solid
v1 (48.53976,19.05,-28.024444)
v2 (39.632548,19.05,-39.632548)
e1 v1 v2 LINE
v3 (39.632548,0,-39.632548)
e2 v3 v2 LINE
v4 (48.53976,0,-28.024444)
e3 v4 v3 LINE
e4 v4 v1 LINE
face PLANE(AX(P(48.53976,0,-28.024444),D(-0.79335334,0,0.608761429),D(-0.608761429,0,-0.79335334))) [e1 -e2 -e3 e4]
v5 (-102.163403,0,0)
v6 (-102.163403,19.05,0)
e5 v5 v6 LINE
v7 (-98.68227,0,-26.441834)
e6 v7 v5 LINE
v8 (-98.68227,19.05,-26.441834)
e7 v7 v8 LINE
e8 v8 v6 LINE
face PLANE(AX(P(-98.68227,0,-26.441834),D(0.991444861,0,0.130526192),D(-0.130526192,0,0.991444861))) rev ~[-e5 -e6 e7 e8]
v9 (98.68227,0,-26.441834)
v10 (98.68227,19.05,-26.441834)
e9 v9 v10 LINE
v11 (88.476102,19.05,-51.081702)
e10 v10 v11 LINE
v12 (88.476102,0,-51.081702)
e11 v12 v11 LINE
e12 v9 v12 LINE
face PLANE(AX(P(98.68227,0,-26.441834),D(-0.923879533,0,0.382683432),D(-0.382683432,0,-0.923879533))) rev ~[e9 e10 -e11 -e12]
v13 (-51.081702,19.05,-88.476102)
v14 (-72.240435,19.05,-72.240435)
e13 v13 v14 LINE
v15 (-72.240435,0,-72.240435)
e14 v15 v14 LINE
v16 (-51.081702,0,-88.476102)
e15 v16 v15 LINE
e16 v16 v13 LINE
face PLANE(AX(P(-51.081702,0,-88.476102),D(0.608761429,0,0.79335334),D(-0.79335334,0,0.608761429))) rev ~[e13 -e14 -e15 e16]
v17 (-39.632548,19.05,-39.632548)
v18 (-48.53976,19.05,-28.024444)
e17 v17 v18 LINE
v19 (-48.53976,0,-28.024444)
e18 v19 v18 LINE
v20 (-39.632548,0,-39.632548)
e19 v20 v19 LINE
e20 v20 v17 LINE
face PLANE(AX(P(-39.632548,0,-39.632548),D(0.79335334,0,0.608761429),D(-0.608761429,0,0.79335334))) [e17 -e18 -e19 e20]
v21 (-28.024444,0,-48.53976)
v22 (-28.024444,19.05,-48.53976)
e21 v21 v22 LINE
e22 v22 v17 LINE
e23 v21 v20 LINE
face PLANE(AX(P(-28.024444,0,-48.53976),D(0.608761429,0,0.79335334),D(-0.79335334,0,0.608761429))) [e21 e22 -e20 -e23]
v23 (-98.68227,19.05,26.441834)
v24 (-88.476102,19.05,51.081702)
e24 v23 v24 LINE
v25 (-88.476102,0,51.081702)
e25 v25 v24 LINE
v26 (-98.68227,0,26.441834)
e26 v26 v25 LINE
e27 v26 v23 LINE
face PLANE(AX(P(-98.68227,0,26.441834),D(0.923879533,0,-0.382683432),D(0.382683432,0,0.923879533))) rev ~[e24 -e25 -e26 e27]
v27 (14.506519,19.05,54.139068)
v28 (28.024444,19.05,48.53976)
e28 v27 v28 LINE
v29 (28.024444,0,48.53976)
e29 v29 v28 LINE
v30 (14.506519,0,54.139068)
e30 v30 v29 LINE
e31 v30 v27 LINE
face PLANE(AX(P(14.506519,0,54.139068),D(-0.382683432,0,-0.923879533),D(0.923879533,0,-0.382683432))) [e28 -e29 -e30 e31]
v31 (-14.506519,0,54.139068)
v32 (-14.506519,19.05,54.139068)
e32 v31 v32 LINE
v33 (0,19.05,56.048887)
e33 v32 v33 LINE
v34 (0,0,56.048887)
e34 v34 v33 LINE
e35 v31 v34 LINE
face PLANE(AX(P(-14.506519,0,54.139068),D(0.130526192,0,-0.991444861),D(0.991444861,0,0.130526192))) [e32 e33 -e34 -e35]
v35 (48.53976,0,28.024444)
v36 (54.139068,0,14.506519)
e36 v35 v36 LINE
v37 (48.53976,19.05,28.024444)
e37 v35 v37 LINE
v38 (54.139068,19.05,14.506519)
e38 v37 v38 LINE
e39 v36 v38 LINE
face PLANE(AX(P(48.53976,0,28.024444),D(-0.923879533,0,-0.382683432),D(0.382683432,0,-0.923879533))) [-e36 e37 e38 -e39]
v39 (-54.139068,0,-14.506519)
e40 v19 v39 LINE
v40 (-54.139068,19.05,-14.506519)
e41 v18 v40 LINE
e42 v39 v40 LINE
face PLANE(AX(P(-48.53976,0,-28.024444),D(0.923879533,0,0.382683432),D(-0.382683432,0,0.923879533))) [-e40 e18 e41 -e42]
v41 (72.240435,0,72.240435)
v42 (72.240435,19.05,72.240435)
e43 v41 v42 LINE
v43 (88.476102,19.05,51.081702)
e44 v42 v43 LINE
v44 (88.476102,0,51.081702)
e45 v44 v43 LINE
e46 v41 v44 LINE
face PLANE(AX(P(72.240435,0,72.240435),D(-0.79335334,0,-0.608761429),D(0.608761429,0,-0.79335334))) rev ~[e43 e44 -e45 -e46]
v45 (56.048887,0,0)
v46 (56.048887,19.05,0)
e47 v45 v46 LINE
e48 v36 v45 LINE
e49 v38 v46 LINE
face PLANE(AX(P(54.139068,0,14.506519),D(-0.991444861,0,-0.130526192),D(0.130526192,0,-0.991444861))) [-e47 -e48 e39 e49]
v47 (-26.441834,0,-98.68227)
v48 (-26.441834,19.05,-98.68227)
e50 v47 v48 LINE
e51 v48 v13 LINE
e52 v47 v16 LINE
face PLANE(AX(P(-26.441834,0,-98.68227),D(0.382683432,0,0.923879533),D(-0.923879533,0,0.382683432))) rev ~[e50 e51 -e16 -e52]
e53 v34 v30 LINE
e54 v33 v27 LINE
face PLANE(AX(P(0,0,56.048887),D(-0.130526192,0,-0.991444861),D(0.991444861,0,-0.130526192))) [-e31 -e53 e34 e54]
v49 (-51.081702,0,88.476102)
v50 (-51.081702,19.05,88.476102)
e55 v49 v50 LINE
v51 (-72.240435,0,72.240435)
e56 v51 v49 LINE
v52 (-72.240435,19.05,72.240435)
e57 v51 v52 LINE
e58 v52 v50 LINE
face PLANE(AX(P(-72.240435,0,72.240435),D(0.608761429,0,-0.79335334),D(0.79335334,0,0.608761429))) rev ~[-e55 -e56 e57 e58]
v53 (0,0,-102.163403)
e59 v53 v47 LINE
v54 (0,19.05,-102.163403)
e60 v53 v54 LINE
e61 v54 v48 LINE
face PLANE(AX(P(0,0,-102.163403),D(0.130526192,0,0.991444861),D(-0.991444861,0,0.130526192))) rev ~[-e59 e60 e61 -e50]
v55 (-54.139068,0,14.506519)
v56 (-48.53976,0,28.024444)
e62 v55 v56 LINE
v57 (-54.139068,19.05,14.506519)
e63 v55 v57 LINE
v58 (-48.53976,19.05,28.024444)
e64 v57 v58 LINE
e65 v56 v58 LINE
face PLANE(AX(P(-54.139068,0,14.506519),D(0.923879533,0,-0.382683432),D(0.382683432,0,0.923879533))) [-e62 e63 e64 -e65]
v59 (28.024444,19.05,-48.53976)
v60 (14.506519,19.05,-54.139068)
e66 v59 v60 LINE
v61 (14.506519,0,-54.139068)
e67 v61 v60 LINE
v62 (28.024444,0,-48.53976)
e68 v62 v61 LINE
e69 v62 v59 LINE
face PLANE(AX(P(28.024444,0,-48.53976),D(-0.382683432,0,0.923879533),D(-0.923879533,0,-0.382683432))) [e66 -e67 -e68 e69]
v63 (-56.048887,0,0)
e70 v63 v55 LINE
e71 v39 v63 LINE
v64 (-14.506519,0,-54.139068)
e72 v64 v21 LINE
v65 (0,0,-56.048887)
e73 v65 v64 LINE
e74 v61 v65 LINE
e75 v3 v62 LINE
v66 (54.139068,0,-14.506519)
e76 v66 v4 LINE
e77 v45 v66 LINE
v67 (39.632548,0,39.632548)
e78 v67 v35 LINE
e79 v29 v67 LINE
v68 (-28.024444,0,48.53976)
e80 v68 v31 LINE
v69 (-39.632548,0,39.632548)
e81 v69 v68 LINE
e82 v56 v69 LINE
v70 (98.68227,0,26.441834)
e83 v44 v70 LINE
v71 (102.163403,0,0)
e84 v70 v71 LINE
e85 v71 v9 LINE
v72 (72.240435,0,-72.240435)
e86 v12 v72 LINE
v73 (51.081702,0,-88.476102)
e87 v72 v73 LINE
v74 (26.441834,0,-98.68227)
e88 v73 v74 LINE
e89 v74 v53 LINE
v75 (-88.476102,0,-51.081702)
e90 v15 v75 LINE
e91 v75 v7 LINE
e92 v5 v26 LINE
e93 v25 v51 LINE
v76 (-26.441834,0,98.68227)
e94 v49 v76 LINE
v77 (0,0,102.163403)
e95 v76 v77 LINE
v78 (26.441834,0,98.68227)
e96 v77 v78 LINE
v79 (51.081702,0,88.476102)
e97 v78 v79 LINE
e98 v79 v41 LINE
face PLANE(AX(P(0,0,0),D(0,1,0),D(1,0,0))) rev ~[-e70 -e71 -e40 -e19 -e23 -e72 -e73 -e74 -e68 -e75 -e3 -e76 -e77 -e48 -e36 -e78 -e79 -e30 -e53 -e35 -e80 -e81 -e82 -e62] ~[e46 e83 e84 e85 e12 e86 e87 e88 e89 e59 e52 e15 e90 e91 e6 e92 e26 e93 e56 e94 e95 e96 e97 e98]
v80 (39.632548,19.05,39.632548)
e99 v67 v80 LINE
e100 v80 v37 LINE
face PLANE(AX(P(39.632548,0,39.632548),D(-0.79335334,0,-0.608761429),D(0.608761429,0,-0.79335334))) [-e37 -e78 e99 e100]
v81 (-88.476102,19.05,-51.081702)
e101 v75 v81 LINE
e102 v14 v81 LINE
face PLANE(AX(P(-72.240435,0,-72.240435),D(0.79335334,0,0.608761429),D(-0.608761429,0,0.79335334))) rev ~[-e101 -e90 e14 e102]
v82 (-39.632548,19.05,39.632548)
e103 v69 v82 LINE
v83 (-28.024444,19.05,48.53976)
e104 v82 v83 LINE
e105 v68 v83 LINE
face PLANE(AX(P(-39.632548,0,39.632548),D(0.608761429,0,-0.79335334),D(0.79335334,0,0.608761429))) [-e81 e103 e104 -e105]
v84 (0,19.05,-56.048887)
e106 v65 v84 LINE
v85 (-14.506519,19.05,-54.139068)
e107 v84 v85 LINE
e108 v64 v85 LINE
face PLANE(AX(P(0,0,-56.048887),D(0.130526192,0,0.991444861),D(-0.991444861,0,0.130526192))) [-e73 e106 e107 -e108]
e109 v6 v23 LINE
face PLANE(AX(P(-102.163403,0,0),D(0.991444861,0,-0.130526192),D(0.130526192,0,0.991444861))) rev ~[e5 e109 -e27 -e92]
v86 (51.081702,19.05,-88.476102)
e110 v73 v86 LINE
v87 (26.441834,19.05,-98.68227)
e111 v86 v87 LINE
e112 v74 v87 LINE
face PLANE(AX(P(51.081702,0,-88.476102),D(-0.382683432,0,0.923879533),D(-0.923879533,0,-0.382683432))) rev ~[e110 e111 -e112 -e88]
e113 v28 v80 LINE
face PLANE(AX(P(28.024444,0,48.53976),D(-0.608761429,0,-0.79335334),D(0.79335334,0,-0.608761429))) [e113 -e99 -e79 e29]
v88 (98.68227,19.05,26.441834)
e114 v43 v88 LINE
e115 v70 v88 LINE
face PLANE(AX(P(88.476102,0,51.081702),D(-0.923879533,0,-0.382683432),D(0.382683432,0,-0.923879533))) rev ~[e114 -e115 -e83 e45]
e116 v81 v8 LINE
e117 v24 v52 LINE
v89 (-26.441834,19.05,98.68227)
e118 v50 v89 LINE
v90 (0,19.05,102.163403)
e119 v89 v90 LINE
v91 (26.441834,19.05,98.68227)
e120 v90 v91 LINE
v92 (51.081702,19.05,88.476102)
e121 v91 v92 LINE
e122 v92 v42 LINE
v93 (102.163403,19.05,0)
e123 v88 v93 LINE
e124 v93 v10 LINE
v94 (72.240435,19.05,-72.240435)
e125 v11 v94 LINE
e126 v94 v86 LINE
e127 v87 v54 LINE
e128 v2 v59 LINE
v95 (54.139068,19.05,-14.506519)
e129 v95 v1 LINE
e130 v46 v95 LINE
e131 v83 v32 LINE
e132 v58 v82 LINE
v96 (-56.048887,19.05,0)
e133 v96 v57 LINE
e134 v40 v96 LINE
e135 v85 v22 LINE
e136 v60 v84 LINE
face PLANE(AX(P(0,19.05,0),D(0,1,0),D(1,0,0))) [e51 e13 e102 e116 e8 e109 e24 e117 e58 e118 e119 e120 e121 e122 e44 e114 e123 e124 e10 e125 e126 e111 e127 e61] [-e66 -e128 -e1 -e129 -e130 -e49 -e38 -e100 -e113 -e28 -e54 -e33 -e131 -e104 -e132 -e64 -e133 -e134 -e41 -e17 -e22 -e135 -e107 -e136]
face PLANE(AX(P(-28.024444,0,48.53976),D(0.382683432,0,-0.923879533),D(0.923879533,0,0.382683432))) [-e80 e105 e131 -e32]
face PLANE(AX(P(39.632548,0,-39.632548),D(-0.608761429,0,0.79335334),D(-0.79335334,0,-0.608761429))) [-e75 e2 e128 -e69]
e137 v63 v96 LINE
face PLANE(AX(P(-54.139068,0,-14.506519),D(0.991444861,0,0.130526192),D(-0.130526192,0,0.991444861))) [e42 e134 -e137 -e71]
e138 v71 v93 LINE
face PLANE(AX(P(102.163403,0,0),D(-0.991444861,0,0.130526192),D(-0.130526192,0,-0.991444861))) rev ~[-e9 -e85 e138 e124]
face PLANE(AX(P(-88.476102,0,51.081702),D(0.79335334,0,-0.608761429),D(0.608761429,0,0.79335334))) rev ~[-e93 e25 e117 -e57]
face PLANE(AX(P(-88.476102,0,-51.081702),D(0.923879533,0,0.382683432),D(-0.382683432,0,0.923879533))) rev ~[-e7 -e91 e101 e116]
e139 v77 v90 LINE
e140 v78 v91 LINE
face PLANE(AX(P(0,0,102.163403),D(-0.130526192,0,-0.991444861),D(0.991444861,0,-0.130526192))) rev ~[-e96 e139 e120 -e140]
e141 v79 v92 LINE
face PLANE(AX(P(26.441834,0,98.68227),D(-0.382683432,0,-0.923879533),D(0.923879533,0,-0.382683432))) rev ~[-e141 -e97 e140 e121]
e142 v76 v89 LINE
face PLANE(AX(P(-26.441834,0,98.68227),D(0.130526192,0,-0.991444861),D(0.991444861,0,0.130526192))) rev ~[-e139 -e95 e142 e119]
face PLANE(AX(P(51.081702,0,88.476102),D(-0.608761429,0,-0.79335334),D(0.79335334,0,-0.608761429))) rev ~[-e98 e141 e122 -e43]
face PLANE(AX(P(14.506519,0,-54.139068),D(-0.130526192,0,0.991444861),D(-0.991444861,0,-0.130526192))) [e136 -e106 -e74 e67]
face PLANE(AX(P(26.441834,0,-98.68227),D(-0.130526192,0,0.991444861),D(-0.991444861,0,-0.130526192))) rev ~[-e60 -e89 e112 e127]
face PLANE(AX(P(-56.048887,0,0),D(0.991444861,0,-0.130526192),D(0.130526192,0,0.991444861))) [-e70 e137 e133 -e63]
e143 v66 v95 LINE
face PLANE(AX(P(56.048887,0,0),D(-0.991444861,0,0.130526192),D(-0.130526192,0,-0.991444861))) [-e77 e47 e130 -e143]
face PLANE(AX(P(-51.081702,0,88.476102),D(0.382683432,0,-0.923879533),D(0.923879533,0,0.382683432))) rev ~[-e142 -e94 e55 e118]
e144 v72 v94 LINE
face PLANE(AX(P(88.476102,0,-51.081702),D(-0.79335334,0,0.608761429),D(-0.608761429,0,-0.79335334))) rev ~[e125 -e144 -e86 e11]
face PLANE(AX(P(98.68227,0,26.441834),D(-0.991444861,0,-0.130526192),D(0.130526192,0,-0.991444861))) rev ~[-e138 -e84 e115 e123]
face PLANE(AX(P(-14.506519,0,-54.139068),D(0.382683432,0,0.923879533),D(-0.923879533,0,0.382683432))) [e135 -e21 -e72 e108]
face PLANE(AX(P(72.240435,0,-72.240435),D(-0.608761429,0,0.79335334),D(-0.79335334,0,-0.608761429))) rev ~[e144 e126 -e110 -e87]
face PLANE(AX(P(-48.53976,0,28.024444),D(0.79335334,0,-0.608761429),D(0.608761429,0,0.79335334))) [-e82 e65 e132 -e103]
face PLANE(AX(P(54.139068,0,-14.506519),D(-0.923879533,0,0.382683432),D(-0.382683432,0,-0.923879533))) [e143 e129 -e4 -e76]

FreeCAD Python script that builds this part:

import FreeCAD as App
import Part
import Sketcher
Q = App.Units.Quantity

doc = App.newDocument("Part")
body = doc.addObject("PartDesign::Body", "Body")

# Sketch on XZ plane
sketch1 = doc.addObject("Sketcher::SketchObject", "Sketch")
body.addObject(sketch1)
sketch1.AttachmentSupport = (doc.XZ_Plane, [""])
sketch1.MapMode = "FlatFace"
sketch1.addGeometry([
    Part.LineSegment(App.Vector(-102, 0, 0), App.Vector(-99, 26, 0)),  # 0
    Part.LineSegment(App.Vector(-99, 26, 0), App.Vector(-88, 51, 0)),  # 1
    Part.LineSegment(App.Vector(-88, 51, 0), App.Vector(-72, 72, 0)),  # 2
    Part.LineSegment(App.Vector(-72, 72, 0), App.Vector(-51, 88, 0)),  # 3
    Part.LineSegment(App.Vector(-51, 88, 0), App.Vector(-26, 99, 0)),  # 4
    Part.LineSegment(App.Vector(-26, 99, 0), App.Vector(0, 102, 0)),  # 5
    Part.LineSegment(App.Vector(0, 102, 0), App.Vector(26, 99, 0)),  # 6
    Part.LineSegment(App.Vector(26, 99, 0), App.Vector(51, 88, 0)),  # 7
    Part.LineSegment(App.Vector(51, 88, 0), App.Vector(72, 72, 0)),  # 8
    Part.LineSegment(App.Vector(72, 72, 0), App.Vector(88, 51, 0)),  # 9
    Part.LineSegment(App.Vector(88, 51, 0), App.Vector(99, 26, 0)),  # 10
    Part.LineSegment(App.Vector(99, 26, 0), App.Vector(102, 0, 0)),  # 11
    Part.LineSegment(App.Vector(102, 0, 0), App.Vector(99, -26, 0)),  # 12
    Part.LineSegment(App.Vector(99, -26, 0), App.Vector(88, -51, 0)),  # 13
    Part.LineSegment(App.Vector(88, -51, 0), App.Vector(72, -72, 0)),  # 14
    Part.LineSegment(App.Vector(72, -72, 0), App.Vector(51, -88, 0)),  # 15
    Part.LineSegment(App.Vector(51, -88, 0), App.Vector(26, -99, 0)),  # 16
    Part.LineSegment(App.Vector(26, -99, 0), App.Vector(0, -102, 0)),  # 17
    Part.LineSegment(App.Vector(0, -102, 0), App.Vector(-26, -99, 0)),  # 18
    Part.LineSegment(App.Vector(-26, -99, 0), App.Vector(-51, -88, 0)),  # 19
    Part.LineSegment(App.Vector(-51, -88, 0), App.Vector(-72, -72, 0)),  # 20
    Part.LineSegment(App.Vector(-72, -72, 0), App.Vector(-88, -51, 0)),  # 21
    Part.LineSegment(App.Vector(-88, -51, 0), App.Vector(-99, -26, 0)),  # 22
    Part.LineSegment(App.Vector(-99, -26, 0), App.Vector(-102, 0, 0)),  # 23
    Part.LineSegment(App.Vector(-54, 15, 0), App.Vector(-56, 0, 0)),  # 24
    Part.LineSegment(App.Vector(-56, 0, 0), App.Vector(-54, -15, 0)),  # 25
    Part.LineSegment(App.Vector(-54, -15, 0), App.Vector(-49, -28, 0)),  # 26
    Part.LineSegment(App.Vector(-49, -28, 0), App.Vector(-40, -40, 0)),  # 27
    Part.LineSegment(App.Vector(-40, -40, 0), App.Vector(-28, -49, 0)),  # 28
    Part.LineSegment(App.Vector(-28, -49, 0), App.Vector(-15, -54, 0)),  # 29
    Part.LineSegment(App.Vector(-15, -54, 0), App.Vector(0, -56, 0)),  # 30
    Part.LineSegment(App.Vector(0, -56, 0), App.Vector(15, -54, 0)),  # 31
    Part.LineSegment(App.Vector(15, -54, 0), App.Vector(28, -49, 0)),  # 32
    Part.LineSegment(App.Vector(28, -49, 0), App.Vector(40, -40, 0)),  # 33
    Part.LineSegment(App.Vector(40, -40, 0), App.Vector(49, -28, 0)),  # 34
    Part.LineSegment(App.Vector(49, -28, 0), App.Vector(54, -15, 0)),  # 35
    Part.LineSegment(App.Vector(54, -15, 0), App.Vector(56, 0, 0)),  # 36
    Part.LineSegment(App.Vector(56, 0, 0), App.Vector(54, 15, 0)),  # 37
    Part.LineSegment(App.Vector(54, 15, 0), App.Vector(49, 28, 0)),  # 38
    Part.LineSegment(App.Vector(49, 28, 0), App.Vector(40, 40, 0)),  # 39
    Part.LineSegment(App.Vector(40, 40, 0), App.Vector(28, 49, 0)),  # 40
    Part.LineSegment(App.Vector(28, 49, 0), App.Vector(15, 54, 0)),  # 41
    Part.LineSegment(App.Vector(15, 54, 0), App.Vector(0, 56, 0)),  # 42
    Part.LineSegment(App.Vector(0, 56, 0), App.Vector(-15, 54, 0)),  # 43
    Part.LineSegment(App.Vector(-15, 54, 0), App.Vector(-28, 49, 0)),  # 44
    Part.LineSegment(App.Vector(-28, 49, 0), App.Vector(-40, 40, 0)),  # 45
    Part.LineSegment(App.Vector(-40, 40, 0), App.Vector(-49, 28, 0)),  # 46
    Part.LineSegment(App.Vector(-49, 28, 0), App.Vector(-54, 15, 0)),  # 47
], False)
sketch1.addConstraint([
    Sketcher.Constraint("Coincident", 0, 2, 1, 1),
    Sketcher.Constraint("Coincident", 1, 2, 2, 1),
    Sketcher.Constraint("Coincident", 2, 2, 3, 1),
    Sketcher.Constraint("Coincident", 3, 2, 4, 1),
    Sketcher.Constraint("Coincident", 4, 2, 5, 1),
    Sketcher.Constraint("Coincident", 5, 2, 6, 1),
    Sketcher.Constraint("Coincident", 6, 2, 7, 1),
    Sketcher.Constraint("Coincident", 7, 2, 8, 1),
    Sketcher.Constraint("Coincident", 8, 2, 9, 1),
    Sketcher.Constraint("Coincident", 9, 2, 10, 1),
    Sketcher.Constraint("Coincident", 10, 2, 11, 1),
    Sketcher.Constraint("Coincident", 11, 2, 12, 1),
    Sketcher.Constraint("Coincident", 12, 2, 13, 1),
    Sketcher.Constraint("Coincident", 13, 2, 14, 1),
    Sketcher.Constraint("Coincident", 14, 2, 15, 1),
    Sketcher.Constraint("Coincident", 15, 2, 16, 1),
    Sketcher.Constraint("Coincident", 16, 2, 17, 1),
    Sketcher.Constraint("Coincident", 17, 2, 18, 1),
    Sketcher.Constraint("Coincident", 18, 2, 19, 1),
    Sketcher.Constraint("Coincident", 19, 2, 20, 1),
    Sketcher.Constraint("Coincident", 20, 2, 21, 1),
    Sketcher.Constraint("Coincident", 21, 2, 22, 1),
    Sketcher.Constraint("Coincident", 22, 2, 23, 1),
    Sketcher.Constraint("Coincident", 23, 2, 0, 1),
    Sketcher.Constraint("Coincident", 24, 2, 25, 1),
    Sketcher.Constraint("Coincident", 25, 2, 26, 1),
    Sketcher.Constraint("Coincident", 26, 2, 27, 1),
    Sketcher.Constraint("Coincident", 27, 2, 28, 1),
    Sketcher.Constraint("Coincident", 28, 2, 29, 1),
    Sketcher.Constraint("Coincident", 29, 2, 30, 1),
    Sketcher.Constraint("Coincident", 30, 2, 31, 1),
    Sketcher.Constraint("Coincident", 31, 2, 32, 1),
    Sketcher.Constraint("Coincident", 32, 2, 33, 1),
    Sketcher.Constraint("Coincident", 33, 2, 34, 1),
    Sketcher.Constraint("Coincident", 34, 2, 35, 1),
    Sketcher.Constraint("Coincident", 35, 2, 36, 1),
    Sketcher.Constraint("Coincident", 36, 2, 37, 1),
    Sketcher.Constraint("Coincident", 37, 2, 38, 1),
    Sketcher.Constraint("Coincident", 38, 2, 39, 1),
    Sketcher.Constraint("Coincident", 39, 2, 40, 1),
    Sketcher.Constraint("Coincident", 40, 2, 41, 1),
    Sketcher.Constraint("Coincident", 41, 2, 42, 1),
    Sketcher.Constraint("Coincident", 42, 2, 43, 1),
    Sketcher.Constraint("Coincident", 43, 2, 44, 1),
    Sketcher.Constraint("Coincident", 44, 2, 45, 1),
    Sketcher.Constraint("Coincident", 45, 2, 46, 1),
    Sketcher.Constraint("Coincident", 46, 2, 47, 1),
    Sketcher.Constraint("Coincident", 47, 2, 24, 1),
    Sketcher.Constraint("Symmetric", 0, 2, 12, 2, -1, 1),
    Sketcher.Constraint("Symmetric", 1, 2, 13, 2, -1, 1),
    Sketcher.Constraint("Symmetric", 2, 2, 14, 2, -1, 1),
    Sketcher.Constraint("Symmetric", 3, 2, 15, 2, -1, 1),
    Sketcher.Constraint("Symmetric", 4, 2, 16, 2, -1, 1),
    Sketcher.Constraint("Symmetric", 5, 2, 17, 2, -1, 1),
    Sketcher.Constraint("Symmetric", 6, 2, 18, 2, -1, 1),
    Sketcher.Constraint("Symmetric", 7, 2, 19, 2, -1, 1),
    Sketcher.Constraint("Symmetric", 8, 2, 20, 2, -1, 1),
    Sketcher.Constraint("Symmetric", 9, 2, 21, 2, -1, 1),
    Sketcher.Constraint("Symmetric", 10, 2, 22, 2, -1, 1),
    Sketcher.Constraint("Symmetric", 11, 2, 23, 2, -1, 1),
    Sketcher.Constraint("Symmetric", 24, 2, 36, 2, -1, 1),
    Sketcher.Constraint("Symmetric", 25, 2, 37, 2, -1, 1),
    Sketcher.Constraint("Symmetric", 26, 2, 38, 2, -1, 1),
    Sketcher.Constraint("Symmetric", 27, 2, 39, 2, -1, 1),
    Sketcher.Constraint("Symmetric", 28, 2, 40, 2, -1, 1),
    Sketcher.Constraint("Symmetric", 29, 2, 41, 2, -1, 1),
    Sketcher.Constraint("Symmetric", 30, 2, 42, 2, -1, 1),
    Sketcher.Constraint("Symmetric", 31, 2, 43, 2, -1, 1),
    Sketcher.Constraint("Symmetric", 32, 2, 44, 2, -1, 1),
    Sketcher.Constraint("Symmetric", 33, 2, 45, 2, -1, 1),
    Sketcher.Constraint("Symmetric", 34, 2, 46, 2, -1, 1),
    Sketcher.Constraint("Symmetric", 35, 2, 47, 2, -1, 1),
    Sketcher.Constraint("Symmetric", 4, 2, 6, 2, -2),
    Sketcher.Constraint("Symmetric", 3, 2, 7, 2, -2),
    Sketcher.Constraint("Symmetric", 2, 2, 8, 2, -2),
    Sketcher.Constraint("Symmetric", 1, 2, 9, 2, -2),
    Sketcher.Constraint("Symmetric", 0, 2, 10, 2, -2),
    Sketcher.Constraint("Symmetric", 29, 2, 31, 2, -2),
    Sketcher.Constraint("Symmetric", 28, 2, 32, 2, -2),
    Sketcher.Constraint("Symmetric", 27, 2, 33, 2, -2),
    Sketcher.Constraint("Symmetric", 26, 2, 34, 2, -2),
    Sketcher.Constraint("Symmetric", 25, 2, 35, 2, -2),
    Sketcher.Constraint("PointOnObject", 5, 2, -2),
    Sketcher.Constraint("PointOnObject", 11, 2, -1),
    Sketcher.Constraint("PointOnObject", 24, 2, -1),
    Sketcher.Constraint("PointOnObject", 30, 2, -2),
    Sketcher.Constraint("Perpendicular", 0, 6),
    Sketcher.Constraint("Perpendicular", 1, 7),
    Sketcher.Constraint("Perpendicular", 2, 8),
    Sketcher.Constraint("Perpendicular", 18, 24),
    Sketcher.Constraint("Parallel", 22, 26),
    Sketcher.Constraint("Parallel", 21, 27),
    Sketcher.Constraint("Parallel", 20, 28),
    Sketcher.Constraint("Parallel", 19, 29),
    Sketcher.Constraint("Perpendicular", 24, 30),
    Sketcher.Constraint("Equal", 0, 1),
    Sketcher.Constraint("Equal", 1, 2),
    Sketcher.Constraint("Equal", 2, 3),
    Sketcher.Constraint("Equal", 3, 4),
    Sketcher.Constraint("Equal", 4, 5),
    Sketcher.Constraint("Equal", 25, 26),
    Sketcher.Constraint("Equal", 26, 27),
    Sketcher.Constraint("Equal", 27, 28),
    Sketcher.Constraint("Equal", 28, 29),
    Sketcher.Constraint("Equal", 29, 30),
    Sketcher.Constraint("Angle", 0, Q("82.5 deg")),
    Sketcher.Constraint("Angle", 1, Q("67.5 deg")),
    Sketcher.Constraint("Angle", 2, Q("52.5 deg")),
    Sketcher.Constraint("Distance", 0, Q("1.05 in")),
    Sketcher.Constraint("DistanceY", 25, 2, -1, 1, Q("14.506519 mm")),
])
pad1 = doc.addObject("PartDesign::Pad", "Pad")
body.addObject(pad1)
pad1.Profile = sketch1
pad1.Length = Q("0.75 in")
pad1.Reversed = True

doc.recompute()
